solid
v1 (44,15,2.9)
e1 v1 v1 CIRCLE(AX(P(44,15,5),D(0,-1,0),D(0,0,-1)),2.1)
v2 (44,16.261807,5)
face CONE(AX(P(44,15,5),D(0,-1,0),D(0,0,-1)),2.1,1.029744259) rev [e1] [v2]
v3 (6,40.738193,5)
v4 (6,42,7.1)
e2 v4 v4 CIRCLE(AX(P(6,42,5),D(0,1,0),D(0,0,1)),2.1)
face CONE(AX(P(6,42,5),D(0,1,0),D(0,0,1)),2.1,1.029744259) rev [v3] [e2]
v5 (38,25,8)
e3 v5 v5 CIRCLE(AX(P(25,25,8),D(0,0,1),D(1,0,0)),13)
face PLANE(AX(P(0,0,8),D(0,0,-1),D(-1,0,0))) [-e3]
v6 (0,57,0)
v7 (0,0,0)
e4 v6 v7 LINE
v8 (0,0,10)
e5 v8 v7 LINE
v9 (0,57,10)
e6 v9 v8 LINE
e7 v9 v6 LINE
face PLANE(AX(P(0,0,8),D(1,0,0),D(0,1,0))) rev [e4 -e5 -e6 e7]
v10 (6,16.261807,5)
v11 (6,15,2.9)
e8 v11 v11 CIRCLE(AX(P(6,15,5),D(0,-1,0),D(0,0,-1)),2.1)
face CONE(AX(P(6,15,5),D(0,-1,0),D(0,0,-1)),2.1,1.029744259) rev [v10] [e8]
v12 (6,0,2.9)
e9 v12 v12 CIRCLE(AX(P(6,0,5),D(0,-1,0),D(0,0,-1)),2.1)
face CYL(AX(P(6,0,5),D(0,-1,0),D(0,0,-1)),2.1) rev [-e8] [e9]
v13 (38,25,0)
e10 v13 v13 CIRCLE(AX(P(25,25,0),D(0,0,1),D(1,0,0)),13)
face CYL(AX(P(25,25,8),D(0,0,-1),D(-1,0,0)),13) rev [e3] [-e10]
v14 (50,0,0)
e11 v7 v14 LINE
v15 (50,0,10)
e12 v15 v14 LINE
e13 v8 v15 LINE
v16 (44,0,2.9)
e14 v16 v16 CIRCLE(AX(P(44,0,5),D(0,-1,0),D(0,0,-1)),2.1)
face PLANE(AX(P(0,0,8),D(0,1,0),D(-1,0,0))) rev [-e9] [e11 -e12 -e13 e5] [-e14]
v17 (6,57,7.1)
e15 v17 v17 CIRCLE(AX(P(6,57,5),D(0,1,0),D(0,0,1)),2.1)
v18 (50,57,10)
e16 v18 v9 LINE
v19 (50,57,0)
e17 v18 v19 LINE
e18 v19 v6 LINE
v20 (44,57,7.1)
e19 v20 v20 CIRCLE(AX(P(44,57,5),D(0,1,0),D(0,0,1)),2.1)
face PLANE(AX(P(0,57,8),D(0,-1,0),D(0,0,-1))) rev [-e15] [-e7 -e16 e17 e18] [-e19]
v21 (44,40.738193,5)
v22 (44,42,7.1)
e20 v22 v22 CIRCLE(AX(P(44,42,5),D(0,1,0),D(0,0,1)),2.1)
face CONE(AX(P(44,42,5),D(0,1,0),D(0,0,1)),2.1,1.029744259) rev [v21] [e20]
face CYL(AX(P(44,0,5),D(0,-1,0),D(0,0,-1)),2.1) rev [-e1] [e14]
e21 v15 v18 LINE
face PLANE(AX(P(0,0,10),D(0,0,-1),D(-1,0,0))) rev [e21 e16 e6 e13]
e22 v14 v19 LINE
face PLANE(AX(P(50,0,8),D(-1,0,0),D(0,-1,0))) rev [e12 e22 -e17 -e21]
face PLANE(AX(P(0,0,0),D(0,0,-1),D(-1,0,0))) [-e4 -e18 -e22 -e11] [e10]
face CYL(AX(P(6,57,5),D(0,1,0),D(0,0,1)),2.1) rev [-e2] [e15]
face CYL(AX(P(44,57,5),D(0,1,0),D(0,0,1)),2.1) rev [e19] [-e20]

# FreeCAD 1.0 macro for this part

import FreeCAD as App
import Part
import Sketcher
from FreeCAD import Vector

doc = App.newDocument("Part")
body = doc.addObject("PartDesign::Body", "Body")

sketch1 = doc.addObject("Sketcher::SketchObject", "Sketch")
body.addObject(sketch1)
sketch1.AttachmentSupport = (doc.XY_Plane, [""])
sketch1.MapMode = "FlatFace"
sketch1.addGeometry(Part.LineSegment(Vector(0, 57, 0), Vector(0, 0, 0)), False)
sketch1.addGeometry(Part.LineSegment(Vector(0, 0, 0), Vector(50, 0, 0)), False)
sketch1.addGeometry(Part.LineSegment(Vector(50, 0, 0), Vector(50, 57, 0)), False)
sketch1.addGeometry(Part.LineSegment(Vector(50, 57, 0), Vector(0, 57, 0)), False)
sketch1.addGeometry(Part.Circle(Vector(25, 25, 0), Vector(0, 0, 1), 13), False)
sketch1.addConstraint(Sketcher.Constraint("Coincident", 0, 2, 1, 1))
sketch1.addConstraint(Sketcher.Constraint("Coincident", 1, 2, 2, 1))
sketch1.addConstraint(Sketcher.Constraint("Coincident", 2, 2, 3, 1))
sketch1.addConstraint(Sketcher.Constraint("Coincident", 3, 2, 0, 1))
sketch1.addConstraint(Sketcher.Constraint("Vertical", 0))
sketch1.addConstraint(Sketcher.Constraint("Horizontal", 1))
sketch1.addConstraint(Sketcher.Constraint("Vertical", 2))
sketch1.addConstraint(Sketcher.Constraint("Horizontal", 3))
sketch1.addConstraint(Sketcher.Constraint("Coincident", 0, 2, -1, 1))
sketch1.addConstraint(Sketcher.Constraint("Diameter", 4, 26.0))
sketch1.addConstraint(Sketcher.Constraint("DistanceX", 1, 1, 1, 2, 50.0))
sketch1.addConstraint(Sketcher.Constraint("DistanceY", 0, 2, 0, 1, 57.0))
sketch1.addConstraint(Sketcher.Constraint("DistanceX", -1, 1, 4, 3, 25.0))
sketch1.addConstraint(Sketcher.Constraint("DistanceY", -1, 1, 4, 3, 25.0))
pad1 = doc.addObject("PartDesign::Pad", "Pad")
body.addObject(pad1)
pad1.Profile = sketch1
pad1.Length = 8

sketch2 = doc.addObject("Sketcher::SketchObject", "Sketch001")
body.addObject(sketch2)
sketch2.AttachmentSupport = (doc.XY_Plane, [""])
sketch2.MapMode = "FlatFace"
sketch2.AttachmentOffset = App.Placement(Vector(0, 0, 8), App.Rotation())
sketch2.addGeometry(Part.LineSegment(Vector(0, 57, 0), Vector(0, 0, 0)), False)
sketch2.addGeometry(Part.LineSegment(Vector(0, 0, 0), Vector(50, 0, 0)), False)
sketch2.addGeometry(Part.LineSegment(Vector(50, 0, 0), Vector(50, 57, 0)), False)
sketch2.addGeometry(Part.LineSegment(Vector(50, 57, 0), Vector(0, 57, 0)), False)
sketch2.addConstraint(Sketcher.Constraint("Coincident", 0, 2, 1, 1))
sketch2.addConstraint(Sketcher.Constraint("Coincident", 1, 2, 2, 1))
sketch2.addConstraint(Sketcher.Constraint("Coincident", 2, 2, 3, 1))
sketch2.addConstraint(Sketcher.Constraint("Coincident", 3, 2, 0, 1))
sketch2.addConstraint(Sketcher.Constraint("Vertical", 0))
sketch2.addConstraint(Sketcher.Constraint("Horizontal", 1))
sketch2.addConstraint(Sketcher.Constraint("Vertical", 2))
sketch2.addConstraint(Sketcher.Constraint("Horizontal", 3))
sketch2.addConstraint(Sketcher.Constraint("Coincident", 0, 2, -1, 1))
sketch2.addConstraint(Sketcher.Constraint("DistanceX", 1, 1, 1, 2, 50.0))
sketch2.addConstraint(Sketcher.Constraint("DistanceY", 0, 2, 0, 1, 57.0))
pad2 = doc.addObject("PartDesign::Pad", "Pad001")
body.addObject(pad2)
pad2.Profile = sketch2
pad2.Length = 2

sketch3 = doc.addObject("Sketcher::SketchObject", "Sketch002")
body.addObject(sketch3)
sketch3.AttachmentSupport = (doc.XZ_Plane, [""])
sketch3.MapMode = "FlatFace"
sketch3.addGeometry(Part.Circle(Vector(6, 5, 0), Vector(0, 0, 1), 2.1), False)
sketch3.addGeometry(Part.Circle(Vector(44, 5, 0), Vector(0, 0, 1), 2.1), False)
sketch3.addConstraint(Sketcher.Constraint("Equal", 0, 1))
sketch3.addConstraint(Sketcher.Constraint("Horizontal", 0, 3, 1, 3))
sketch3.addConstraint(Sketcher.Constraint("Diameter", 0, 4.2))
sketch3.addConstraint(Sketcher.Constraint("DistanceX", -1, 1, 0, 3, 6.0))
sketch3.addConstraint(Sketcher.Constraint("DistanceY", -1, 1, 0, 3, 5.0))
sketch3.addConstraint(Sketcher.Constraint("DistanceX", -1, 1, 1, 3, 44.0))
doc.recompute()
hole = doc.addObject("PartDesign::Hole", "Hole")
body.addObject(hole)
hole.Profile = sketch3
hole.ThreadType = "None"
hole.Diameter = 4.2
hole.DepthType = "Dimension"
hole.Depth = 15
hole.DrillPoint = "Angled"
hole.DrillPointAngle = 118

sketch4 = doc.addObject("Sketcher::SketchObject", "Sketch003")
body.addObject(sketch4)
sketch4.AttachmentSupport = (doc.XZ_Plane, [""])
sketch4.MapMode = "FlatFace"
sketch4.AttachmentOffset = App.Placement(Vector(0, 0, -57), App.Rotation())
sketch4.addGeometry(Part.Circle(Vector(6, 5, 0), Vector(0, 0, 1), 2.1), False)
sketch4.addGeometry(Part.Circle(Vector(44, 5, 0), Vector(0, 0, 1), 2.1), False)
sketch4.addConstraint(Sketcher.Constraint("Equal", 0, 1))
sketch4.addConstraint(Sketcher.Constraint("Horizontal", 0, 3, 1, 3))
sketch4.addConstraint(Sketcher.Constraint("Diameter", 0, 4.2))
sketch4.addConstraint(Sketcher.Constraint("DistanceX", -1, 1, 0, 3, 6.0))
sketch4.addConstraint(Sketcher.Constraint("DistanceY", -1, 1, 0, 3, 5.0))
sketch4.addConstraint(Sketcher.Constraint("DistanceX", -1, 1, 1, 3, 44.0))
doc.recompute()
hole2 = doc.addObject("PartDesign::Hole", "Hole001")
body.addObject(hole2)
hole2.Profile = sketch4
hole2.ThreadType = "None"
hole2.Diameter = 4.2
hole2.DepthType = "Dimension"
hole2.Depth = 15
hole2.DrillPoint = "Angled"
hole2.DrillPointAngle = 118
hole2.Reversed = True

doc.recompute()
